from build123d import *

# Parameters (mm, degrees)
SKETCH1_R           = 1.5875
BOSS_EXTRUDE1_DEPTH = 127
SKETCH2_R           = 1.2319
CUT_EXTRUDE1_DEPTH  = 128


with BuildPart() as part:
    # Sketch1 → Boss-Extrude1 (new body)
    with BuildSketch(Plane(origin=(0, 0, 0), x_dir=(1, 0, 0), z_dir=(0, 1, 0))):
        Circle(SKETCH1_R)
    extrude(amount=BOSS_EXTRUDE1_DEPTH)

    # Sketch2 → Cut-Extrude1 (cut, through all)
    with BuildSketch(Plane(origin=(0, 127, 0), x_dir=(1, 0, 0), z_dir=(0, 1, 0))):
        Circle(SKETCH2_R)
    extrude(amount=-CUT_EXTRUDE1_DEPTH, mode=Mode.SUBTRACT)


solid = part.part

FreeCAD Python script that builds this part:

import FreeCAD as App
import Part
import Sketcher

V = App.Vector
Q = App.Units.Quantity

doc = App.newDocument("Part")
params = doc.addObject("Spreadsheet::Sheet", "Params")
for row, (alias, value) in enumerate([
    ("sketch1_diameter", "0.125 in"),
    ("pad1_length", "5 in"),
    ("sketch2_diameter", "0.097 in"),
], start=1):
    params.set(f"A{row}", alias)
    params.set(f"B{row}", "=" + value)
    params.setAlias(f"B{row}", alias)

body = doc.addObject("PartDesign::Body", "Body")

# Sketch on XZ plane
sketch1 = doc.addObject("Sketcher::SketchObject", "Sketch")
body.addObject(sketch1)
sketch1.AttachmentSupport = (doc.XZ_Plane, [""])
sketch1.MapMode = "FlatFace"
sketch1.addGeometry(Part.Circle(V(0, 0, 0), V(0, 0, 1), 1.6), False)
sketch1.addConstraint([
    Sketcher.Constraint("Coincident", 0, 3, -1, 1),
    Sketcher.Constraint("Diameter", 0, Q("0.125 in")),
])
sketch1.setExpression("Constraints[1]", "Params.sketch1_diameter")
pad1 = doc.addObject("PartDesign::Pad", "Pad")
body.addObject(pad1)
pad1.Profile = sketch1
pad1.setExpression("Length", "Params.pad1_length")
pad1.Reversed = True

# Sketch on XZ plane
sketch2 = doc.addObject("Sketcher::SketchObject", "Sketch001")
body.addObject(sketch2)
sketch2.AttachmentSupport = (doc.XZ_Plane, [""])
sketch2.MapMode = "FlatFace"
sketch2.AttachmentOffset = App.Placement(V(0, 0, -5 * 25.4), App.Rotation())
sketch2.addGeometry(Part.Circle(V(0, 0, 0), V(0, 0, 1), 1.2), False)
sketch2.addConstraint([
    Sketcher.Constraint("Coincident", 0, 3, -1, 1),
    Sketcher.Constraint("Diameter", 0, Q("0.097 in")),
])
sketch2.setExpression("Constraints[1]", "Params.sketch2_diameter")
pocket1 = doc.addObject("PartDesign::Pocket", "Pocket")
body.addObject(pocket1)
pocket1.Profile = sketch2
pocket1.Type = "ThroughAll"
pocket1.Reversed = True

doc.recompute()
